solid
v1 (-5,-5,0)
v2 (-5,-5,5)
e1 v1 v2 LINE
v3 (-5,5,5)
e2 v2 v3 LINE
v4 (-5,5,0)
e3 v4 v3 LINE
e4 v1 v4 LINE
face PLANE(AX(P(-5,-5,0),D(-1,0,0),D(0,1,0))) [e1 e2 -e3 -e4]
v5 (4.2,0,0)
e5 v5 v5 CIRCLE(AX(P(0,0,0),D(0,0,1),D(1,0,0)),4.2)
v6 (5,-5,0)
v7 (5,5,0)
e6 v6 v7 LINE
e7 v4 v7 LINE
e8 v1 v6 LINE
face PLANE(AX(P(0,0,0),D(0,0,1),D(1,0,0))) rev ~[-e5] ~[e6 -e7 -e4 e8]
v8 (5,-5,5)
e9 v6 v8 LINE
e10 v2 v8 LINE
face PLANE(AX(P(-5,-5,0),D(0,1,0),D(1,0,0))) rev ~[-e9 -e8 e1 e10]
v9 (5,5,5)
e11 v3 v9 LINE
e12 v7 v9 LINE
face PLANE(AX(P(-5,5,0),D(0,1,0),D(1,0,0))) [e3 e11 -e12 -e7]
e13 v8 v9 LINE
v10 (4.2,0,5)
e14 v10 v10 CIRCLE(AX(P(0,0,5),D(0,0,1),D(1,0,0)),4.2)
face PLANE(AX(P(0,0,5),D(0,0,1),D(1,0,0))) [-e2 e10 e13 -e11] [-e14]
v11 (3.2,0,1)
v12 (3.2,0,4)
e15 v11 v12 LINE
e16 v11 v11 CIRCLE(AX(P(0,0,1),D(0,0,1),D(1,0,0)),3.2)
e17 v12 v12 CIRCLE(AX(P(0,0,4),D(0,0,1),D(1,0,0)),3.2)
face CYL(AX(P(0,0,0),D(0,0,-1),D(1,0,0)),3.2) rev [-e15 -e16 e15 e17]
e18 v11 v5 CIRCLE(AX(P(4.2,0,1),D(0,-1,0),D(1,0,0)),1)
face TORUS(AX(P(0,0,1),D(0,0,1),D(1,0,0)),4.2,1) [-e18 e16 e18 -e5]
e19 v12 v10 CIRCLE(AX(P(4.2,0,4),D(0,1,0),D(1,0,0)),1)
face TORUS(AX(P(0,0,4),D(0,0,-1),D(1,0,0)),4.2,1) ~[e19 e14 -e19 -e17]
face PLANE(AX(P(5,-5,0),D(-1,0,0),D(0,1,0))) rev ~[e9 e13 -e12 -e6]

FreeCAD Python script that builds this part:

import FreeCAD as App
import Part
import Sketcher

V = App.Vector


def edges_at(feature, points):
    """Names of the edges that pass closest to the given points."""
    edges = feature.Shape.Edges
    near = lambda p: min(range(len(edges)), key=lambda i: edges[i].distToShape(Part.Vertex(*p))[0])
    return sorted({f"Edge{near(p) + 1}" for p in points})

doc = App.newDocument("Part")
body = doc.addObject("PartDesign::Body", "Body")

# Sketch on XY plane
sketch1 = body.newObject("Sketcher::SketchObject", "Sketch")
sketch1.AttachmentSupport = (doc.getObject("XY_Plane"), [""])
sketch1.MapMode = "FlatFace"
sketch1.addGeometry([
    Part.LineSegment(V(-5, 5, 0), V(-5, -5, 0)),  # 0
    Part.LineSegment(V(-5, -5, 0), V(5, -5, 0)),  # 1
    Part.LineSegment(V(5, -5, 0), V(5, 5, 0)),  # 2
    Part.LineSegment(V(5, 5, 0), V(-5, 5, 0)),  # 3
    Part.Circle(V(0, 0, 0), V(0, 0, 1), 3.2),  # 4
], False)
sketch1.addConstraint([
    Sketcher.Constraint("Coincident", 0, 2, 1, 1),
    Sketcher.Constraint("Coincident", 1, 2, 2, 1),
    Sketcher.Constraint("Coincident", 2, 2, 3, 1),
    Sketcher.Constraint("Coincident", 3, 2, 0, 1),
    Sketcher.Constraint("Vertical", 0),
    Sketcher.Constraint("Horizontal", 1),
    Sketcher.Constraint("Vertical", 2),
    Sketcher.Constraint("Horizontal", 3),
    Sketcher.Constraint("Coincident", 4, 3, -1, 1),
    Sketcher.Constraint("Symmetric", 0, 2, 2, 2, -1, 1),
    Sketcher.Constraint("Equal", 3, 0),
    Sketcher.Constraint("Diameter", 4, 6.4),
    Sketcher.Constraint("DistanceX", 1, 1, 1, 2, 10.0),
])
pad1 = body.newObject("PartDesign::Pad", "Pad")
pad1.Profile = sketch1
pad1.Length = 5
doc.recompute()

fillet = body.newObject("PartDesign::Fillet", "Fillet")
fillet.Base = (pad1, edges_at(pad1, [(-3.2, 0, 0)]))
fillet.Radius = 1
doc.recompute()

fillet2 = body.newObject("PartDesign::Fillet", "Fillet001")
fillet2.Base = (fillet, edges_at(fillet, [(-3.2, 0, 5)]))
fillet2.Radius = 1

doc.recompute()
